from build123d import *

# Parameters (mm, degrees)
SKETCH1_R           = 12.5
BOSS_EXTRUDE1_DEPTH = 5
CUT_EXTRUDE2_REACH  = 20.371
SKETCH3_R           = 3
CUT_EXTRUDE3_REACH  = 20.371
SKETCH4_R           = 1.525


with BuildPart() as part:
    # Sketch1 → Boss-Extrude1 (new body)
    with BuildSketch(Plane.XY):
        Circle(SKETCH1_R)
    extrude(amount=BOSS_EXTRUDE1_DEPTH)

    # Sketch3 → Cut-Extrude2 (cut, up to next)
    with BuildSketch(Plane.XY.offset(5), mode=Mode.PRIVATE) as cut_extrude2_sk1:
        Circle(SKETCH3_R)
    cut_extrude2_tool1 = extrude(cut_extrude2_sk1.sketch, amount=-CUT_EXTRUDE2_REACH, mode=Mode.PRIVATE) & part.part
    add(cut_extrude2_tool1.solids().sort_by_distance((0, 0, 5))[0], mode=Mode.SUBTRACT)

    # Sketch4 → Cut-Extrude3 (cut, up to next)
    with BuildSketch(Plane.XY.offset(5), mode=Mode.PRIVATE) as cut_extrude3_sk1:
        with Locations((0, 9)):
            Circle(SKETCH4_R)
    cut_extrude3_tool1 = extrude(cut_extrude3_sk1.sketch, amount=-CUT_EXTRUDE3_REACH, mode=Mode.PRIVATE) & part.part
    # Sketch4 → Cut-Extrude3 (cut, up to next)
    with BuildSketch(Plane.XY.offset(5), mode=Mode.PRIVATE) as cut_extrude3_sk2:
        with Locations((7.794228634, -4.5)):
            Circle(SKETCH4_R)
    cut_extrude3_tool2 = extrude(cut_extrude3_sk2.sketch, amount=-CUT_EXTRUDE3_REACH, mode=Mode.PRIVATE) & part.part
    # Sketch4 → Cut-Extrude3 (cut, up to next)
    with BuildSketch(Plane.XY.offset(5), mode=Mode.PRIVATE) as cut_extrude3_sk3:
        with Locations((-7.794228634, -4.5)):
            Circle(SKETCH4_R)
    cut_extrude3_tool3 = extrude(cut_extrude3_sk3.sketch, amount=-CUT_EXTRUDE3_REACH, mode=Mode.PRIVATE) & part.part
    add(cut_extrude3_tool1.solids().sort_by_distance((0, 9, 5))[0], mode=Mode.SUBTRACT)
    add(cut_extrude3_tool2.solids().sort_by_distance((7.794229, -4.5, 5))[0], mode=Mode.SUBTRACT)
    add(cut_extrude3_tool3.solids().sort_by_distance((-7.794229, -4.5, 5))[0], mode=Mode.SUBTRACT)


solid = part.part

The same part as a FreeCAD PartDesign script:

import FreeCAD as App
import Part
import Sketcher

V = App.Vector

doc = App.newDocument("Part")
body = doc.addObject("PartDesign::Body", "Body")

# Sketch on XY plane
sketch1 = body.newObject("Sketcher::SketchObject", "Sketch")
sketch1.AttachmentSupport = (doc.getObject("XY_Plane"), [""])
sketch1.MapMode = "FlatFace"
sketch1.addGeometry(Part.Circle(V(0, 0, 0), V(0, 0, 1), 12), False)
sketch1.addConstraint([
    Sketcher.Constraint("Coincident", 0, 3, -1, 1),
    Sketcher.Constraint("Diameter", 0, 25.0),
])
pad1 = body.newObject("PartDesign::Pad", "Pad")
pad1.Profile = sketch1
pad1.Length = 5

# Sketch on XY plane
sketch2 = body.newObject("Sketcher::SketchObject", "Sketch001")
sketch2.AttachmentSupport = (doc.getObject("XY_Plane"), [""])
sketch2.MapMode = "FlatFace"
sketch2.AttachmentOffset = App.Placement(V(0, 0, 5), App.Rotation())
sketch2.addGeometry(Part.Circle(V(0, 0, 0), V(0, 0, 1), 3), False)
sketch2.addConstraint([
    Sketcher.Constraint("Coincident", 0, 3, -1, 1),
    Sketcher.Constraint("Diameter", 0, 6.0),
])
pocket1 = body.newObject("PartDesign::Pocket", "Pocket")
pocket1.Profile = sketch2
pocket1.Type = "UpToFirst"

# Sketch on XY plane
sketch3 = body.newObject("Sketcher::SketchObject", "Sketch002")
sketch3.AttachmentSupport = (doc.getObject("XY_Plane"), [""])
sketch3.MapMode = "FlatFace"
sketch3.AttachmentOffset = App.Placement(V(0, 0, 5), App.Rotation())
sketch3.addGeometry(Part.Circle(V(0, 9, 0), V(0, 0, 1), 1.5), False)
sketch3.addConstraint([
    Sketcher.Constraint("PointOnObject", 0, 3, -2),
    Sketcher.Constraint("Diameter", 0, 3.05),
    Sketcher.Constraint("DistanceY", -1, 1, 0, 3, 9.0),
])
pocket2 = body.newObject("PartDesign::Pocket", "Pocket001")
pocket2.Profile = sketch3
pocket2.Type = "UpToFirst"

# Sketch on XY plane
sketch4 = body.newObject("Sketcher::SketchObject", "Sketch003")
sketch4.AttachmentSupport = (doc.getObject("XY_Plane"), [""])
sketch4.MapMode = "FlatFace"
sketch4.AttachmentOffset = App.Placement(V(0, 0, 5), App.Rotation())
sketch4.addGeometry(Part.Circle(V(7.8, -4.5, 0), V(0, 0, 1), 1.5), False)
sketch4.addConstraint([
    Sketcher.Constraint("Diameter", 0, 3.05),
    Sketcher.Constraint("DistanceY", 0, 3, -1, 1, 4.5),
    Sketcher.Constraint("DistanceX", -1, 1, 0, 3, 7.794229),
])
pocket3 = body.newObject("PartDesign::Pocket", "Pocket002")
pocket3.Profile = sketch4
pocket3.Type = "UpToFirst"

# Sketch on XY plane
sketch5 = body.newObject("Sketcher::SketchObject", "Sketch004")
sketch5.AttachmentSupport = (doc.getObject("XY_Plane"), [""])
sketch5.MapMode = "FlatFace"
sketch5.AttachmentOffset = App.Placement(V(0, 0, 5), App.Rotation())
sketch5.addGeometry(Part.Circle(V(-7.8, -4.5, 0), V(0, 0, 1), 1.5), False)
sketch5.addConstraint([
    Sketcher.Constraint("Diameter", 0, 3.05),
    Sketcher.Constraint("DistanceY", 0, 3, -1, 1, 4.5),
    Sketcher.Constraint("DistanceX", 0, 3, -1, 1, 7.794229),
])
pocket4 = body.newObject("PartDesign::Pocket", "Pocket003")
pocket4.Profile = sketch5
pocket4.Type = "UpToFirst"

doc.recompute()
